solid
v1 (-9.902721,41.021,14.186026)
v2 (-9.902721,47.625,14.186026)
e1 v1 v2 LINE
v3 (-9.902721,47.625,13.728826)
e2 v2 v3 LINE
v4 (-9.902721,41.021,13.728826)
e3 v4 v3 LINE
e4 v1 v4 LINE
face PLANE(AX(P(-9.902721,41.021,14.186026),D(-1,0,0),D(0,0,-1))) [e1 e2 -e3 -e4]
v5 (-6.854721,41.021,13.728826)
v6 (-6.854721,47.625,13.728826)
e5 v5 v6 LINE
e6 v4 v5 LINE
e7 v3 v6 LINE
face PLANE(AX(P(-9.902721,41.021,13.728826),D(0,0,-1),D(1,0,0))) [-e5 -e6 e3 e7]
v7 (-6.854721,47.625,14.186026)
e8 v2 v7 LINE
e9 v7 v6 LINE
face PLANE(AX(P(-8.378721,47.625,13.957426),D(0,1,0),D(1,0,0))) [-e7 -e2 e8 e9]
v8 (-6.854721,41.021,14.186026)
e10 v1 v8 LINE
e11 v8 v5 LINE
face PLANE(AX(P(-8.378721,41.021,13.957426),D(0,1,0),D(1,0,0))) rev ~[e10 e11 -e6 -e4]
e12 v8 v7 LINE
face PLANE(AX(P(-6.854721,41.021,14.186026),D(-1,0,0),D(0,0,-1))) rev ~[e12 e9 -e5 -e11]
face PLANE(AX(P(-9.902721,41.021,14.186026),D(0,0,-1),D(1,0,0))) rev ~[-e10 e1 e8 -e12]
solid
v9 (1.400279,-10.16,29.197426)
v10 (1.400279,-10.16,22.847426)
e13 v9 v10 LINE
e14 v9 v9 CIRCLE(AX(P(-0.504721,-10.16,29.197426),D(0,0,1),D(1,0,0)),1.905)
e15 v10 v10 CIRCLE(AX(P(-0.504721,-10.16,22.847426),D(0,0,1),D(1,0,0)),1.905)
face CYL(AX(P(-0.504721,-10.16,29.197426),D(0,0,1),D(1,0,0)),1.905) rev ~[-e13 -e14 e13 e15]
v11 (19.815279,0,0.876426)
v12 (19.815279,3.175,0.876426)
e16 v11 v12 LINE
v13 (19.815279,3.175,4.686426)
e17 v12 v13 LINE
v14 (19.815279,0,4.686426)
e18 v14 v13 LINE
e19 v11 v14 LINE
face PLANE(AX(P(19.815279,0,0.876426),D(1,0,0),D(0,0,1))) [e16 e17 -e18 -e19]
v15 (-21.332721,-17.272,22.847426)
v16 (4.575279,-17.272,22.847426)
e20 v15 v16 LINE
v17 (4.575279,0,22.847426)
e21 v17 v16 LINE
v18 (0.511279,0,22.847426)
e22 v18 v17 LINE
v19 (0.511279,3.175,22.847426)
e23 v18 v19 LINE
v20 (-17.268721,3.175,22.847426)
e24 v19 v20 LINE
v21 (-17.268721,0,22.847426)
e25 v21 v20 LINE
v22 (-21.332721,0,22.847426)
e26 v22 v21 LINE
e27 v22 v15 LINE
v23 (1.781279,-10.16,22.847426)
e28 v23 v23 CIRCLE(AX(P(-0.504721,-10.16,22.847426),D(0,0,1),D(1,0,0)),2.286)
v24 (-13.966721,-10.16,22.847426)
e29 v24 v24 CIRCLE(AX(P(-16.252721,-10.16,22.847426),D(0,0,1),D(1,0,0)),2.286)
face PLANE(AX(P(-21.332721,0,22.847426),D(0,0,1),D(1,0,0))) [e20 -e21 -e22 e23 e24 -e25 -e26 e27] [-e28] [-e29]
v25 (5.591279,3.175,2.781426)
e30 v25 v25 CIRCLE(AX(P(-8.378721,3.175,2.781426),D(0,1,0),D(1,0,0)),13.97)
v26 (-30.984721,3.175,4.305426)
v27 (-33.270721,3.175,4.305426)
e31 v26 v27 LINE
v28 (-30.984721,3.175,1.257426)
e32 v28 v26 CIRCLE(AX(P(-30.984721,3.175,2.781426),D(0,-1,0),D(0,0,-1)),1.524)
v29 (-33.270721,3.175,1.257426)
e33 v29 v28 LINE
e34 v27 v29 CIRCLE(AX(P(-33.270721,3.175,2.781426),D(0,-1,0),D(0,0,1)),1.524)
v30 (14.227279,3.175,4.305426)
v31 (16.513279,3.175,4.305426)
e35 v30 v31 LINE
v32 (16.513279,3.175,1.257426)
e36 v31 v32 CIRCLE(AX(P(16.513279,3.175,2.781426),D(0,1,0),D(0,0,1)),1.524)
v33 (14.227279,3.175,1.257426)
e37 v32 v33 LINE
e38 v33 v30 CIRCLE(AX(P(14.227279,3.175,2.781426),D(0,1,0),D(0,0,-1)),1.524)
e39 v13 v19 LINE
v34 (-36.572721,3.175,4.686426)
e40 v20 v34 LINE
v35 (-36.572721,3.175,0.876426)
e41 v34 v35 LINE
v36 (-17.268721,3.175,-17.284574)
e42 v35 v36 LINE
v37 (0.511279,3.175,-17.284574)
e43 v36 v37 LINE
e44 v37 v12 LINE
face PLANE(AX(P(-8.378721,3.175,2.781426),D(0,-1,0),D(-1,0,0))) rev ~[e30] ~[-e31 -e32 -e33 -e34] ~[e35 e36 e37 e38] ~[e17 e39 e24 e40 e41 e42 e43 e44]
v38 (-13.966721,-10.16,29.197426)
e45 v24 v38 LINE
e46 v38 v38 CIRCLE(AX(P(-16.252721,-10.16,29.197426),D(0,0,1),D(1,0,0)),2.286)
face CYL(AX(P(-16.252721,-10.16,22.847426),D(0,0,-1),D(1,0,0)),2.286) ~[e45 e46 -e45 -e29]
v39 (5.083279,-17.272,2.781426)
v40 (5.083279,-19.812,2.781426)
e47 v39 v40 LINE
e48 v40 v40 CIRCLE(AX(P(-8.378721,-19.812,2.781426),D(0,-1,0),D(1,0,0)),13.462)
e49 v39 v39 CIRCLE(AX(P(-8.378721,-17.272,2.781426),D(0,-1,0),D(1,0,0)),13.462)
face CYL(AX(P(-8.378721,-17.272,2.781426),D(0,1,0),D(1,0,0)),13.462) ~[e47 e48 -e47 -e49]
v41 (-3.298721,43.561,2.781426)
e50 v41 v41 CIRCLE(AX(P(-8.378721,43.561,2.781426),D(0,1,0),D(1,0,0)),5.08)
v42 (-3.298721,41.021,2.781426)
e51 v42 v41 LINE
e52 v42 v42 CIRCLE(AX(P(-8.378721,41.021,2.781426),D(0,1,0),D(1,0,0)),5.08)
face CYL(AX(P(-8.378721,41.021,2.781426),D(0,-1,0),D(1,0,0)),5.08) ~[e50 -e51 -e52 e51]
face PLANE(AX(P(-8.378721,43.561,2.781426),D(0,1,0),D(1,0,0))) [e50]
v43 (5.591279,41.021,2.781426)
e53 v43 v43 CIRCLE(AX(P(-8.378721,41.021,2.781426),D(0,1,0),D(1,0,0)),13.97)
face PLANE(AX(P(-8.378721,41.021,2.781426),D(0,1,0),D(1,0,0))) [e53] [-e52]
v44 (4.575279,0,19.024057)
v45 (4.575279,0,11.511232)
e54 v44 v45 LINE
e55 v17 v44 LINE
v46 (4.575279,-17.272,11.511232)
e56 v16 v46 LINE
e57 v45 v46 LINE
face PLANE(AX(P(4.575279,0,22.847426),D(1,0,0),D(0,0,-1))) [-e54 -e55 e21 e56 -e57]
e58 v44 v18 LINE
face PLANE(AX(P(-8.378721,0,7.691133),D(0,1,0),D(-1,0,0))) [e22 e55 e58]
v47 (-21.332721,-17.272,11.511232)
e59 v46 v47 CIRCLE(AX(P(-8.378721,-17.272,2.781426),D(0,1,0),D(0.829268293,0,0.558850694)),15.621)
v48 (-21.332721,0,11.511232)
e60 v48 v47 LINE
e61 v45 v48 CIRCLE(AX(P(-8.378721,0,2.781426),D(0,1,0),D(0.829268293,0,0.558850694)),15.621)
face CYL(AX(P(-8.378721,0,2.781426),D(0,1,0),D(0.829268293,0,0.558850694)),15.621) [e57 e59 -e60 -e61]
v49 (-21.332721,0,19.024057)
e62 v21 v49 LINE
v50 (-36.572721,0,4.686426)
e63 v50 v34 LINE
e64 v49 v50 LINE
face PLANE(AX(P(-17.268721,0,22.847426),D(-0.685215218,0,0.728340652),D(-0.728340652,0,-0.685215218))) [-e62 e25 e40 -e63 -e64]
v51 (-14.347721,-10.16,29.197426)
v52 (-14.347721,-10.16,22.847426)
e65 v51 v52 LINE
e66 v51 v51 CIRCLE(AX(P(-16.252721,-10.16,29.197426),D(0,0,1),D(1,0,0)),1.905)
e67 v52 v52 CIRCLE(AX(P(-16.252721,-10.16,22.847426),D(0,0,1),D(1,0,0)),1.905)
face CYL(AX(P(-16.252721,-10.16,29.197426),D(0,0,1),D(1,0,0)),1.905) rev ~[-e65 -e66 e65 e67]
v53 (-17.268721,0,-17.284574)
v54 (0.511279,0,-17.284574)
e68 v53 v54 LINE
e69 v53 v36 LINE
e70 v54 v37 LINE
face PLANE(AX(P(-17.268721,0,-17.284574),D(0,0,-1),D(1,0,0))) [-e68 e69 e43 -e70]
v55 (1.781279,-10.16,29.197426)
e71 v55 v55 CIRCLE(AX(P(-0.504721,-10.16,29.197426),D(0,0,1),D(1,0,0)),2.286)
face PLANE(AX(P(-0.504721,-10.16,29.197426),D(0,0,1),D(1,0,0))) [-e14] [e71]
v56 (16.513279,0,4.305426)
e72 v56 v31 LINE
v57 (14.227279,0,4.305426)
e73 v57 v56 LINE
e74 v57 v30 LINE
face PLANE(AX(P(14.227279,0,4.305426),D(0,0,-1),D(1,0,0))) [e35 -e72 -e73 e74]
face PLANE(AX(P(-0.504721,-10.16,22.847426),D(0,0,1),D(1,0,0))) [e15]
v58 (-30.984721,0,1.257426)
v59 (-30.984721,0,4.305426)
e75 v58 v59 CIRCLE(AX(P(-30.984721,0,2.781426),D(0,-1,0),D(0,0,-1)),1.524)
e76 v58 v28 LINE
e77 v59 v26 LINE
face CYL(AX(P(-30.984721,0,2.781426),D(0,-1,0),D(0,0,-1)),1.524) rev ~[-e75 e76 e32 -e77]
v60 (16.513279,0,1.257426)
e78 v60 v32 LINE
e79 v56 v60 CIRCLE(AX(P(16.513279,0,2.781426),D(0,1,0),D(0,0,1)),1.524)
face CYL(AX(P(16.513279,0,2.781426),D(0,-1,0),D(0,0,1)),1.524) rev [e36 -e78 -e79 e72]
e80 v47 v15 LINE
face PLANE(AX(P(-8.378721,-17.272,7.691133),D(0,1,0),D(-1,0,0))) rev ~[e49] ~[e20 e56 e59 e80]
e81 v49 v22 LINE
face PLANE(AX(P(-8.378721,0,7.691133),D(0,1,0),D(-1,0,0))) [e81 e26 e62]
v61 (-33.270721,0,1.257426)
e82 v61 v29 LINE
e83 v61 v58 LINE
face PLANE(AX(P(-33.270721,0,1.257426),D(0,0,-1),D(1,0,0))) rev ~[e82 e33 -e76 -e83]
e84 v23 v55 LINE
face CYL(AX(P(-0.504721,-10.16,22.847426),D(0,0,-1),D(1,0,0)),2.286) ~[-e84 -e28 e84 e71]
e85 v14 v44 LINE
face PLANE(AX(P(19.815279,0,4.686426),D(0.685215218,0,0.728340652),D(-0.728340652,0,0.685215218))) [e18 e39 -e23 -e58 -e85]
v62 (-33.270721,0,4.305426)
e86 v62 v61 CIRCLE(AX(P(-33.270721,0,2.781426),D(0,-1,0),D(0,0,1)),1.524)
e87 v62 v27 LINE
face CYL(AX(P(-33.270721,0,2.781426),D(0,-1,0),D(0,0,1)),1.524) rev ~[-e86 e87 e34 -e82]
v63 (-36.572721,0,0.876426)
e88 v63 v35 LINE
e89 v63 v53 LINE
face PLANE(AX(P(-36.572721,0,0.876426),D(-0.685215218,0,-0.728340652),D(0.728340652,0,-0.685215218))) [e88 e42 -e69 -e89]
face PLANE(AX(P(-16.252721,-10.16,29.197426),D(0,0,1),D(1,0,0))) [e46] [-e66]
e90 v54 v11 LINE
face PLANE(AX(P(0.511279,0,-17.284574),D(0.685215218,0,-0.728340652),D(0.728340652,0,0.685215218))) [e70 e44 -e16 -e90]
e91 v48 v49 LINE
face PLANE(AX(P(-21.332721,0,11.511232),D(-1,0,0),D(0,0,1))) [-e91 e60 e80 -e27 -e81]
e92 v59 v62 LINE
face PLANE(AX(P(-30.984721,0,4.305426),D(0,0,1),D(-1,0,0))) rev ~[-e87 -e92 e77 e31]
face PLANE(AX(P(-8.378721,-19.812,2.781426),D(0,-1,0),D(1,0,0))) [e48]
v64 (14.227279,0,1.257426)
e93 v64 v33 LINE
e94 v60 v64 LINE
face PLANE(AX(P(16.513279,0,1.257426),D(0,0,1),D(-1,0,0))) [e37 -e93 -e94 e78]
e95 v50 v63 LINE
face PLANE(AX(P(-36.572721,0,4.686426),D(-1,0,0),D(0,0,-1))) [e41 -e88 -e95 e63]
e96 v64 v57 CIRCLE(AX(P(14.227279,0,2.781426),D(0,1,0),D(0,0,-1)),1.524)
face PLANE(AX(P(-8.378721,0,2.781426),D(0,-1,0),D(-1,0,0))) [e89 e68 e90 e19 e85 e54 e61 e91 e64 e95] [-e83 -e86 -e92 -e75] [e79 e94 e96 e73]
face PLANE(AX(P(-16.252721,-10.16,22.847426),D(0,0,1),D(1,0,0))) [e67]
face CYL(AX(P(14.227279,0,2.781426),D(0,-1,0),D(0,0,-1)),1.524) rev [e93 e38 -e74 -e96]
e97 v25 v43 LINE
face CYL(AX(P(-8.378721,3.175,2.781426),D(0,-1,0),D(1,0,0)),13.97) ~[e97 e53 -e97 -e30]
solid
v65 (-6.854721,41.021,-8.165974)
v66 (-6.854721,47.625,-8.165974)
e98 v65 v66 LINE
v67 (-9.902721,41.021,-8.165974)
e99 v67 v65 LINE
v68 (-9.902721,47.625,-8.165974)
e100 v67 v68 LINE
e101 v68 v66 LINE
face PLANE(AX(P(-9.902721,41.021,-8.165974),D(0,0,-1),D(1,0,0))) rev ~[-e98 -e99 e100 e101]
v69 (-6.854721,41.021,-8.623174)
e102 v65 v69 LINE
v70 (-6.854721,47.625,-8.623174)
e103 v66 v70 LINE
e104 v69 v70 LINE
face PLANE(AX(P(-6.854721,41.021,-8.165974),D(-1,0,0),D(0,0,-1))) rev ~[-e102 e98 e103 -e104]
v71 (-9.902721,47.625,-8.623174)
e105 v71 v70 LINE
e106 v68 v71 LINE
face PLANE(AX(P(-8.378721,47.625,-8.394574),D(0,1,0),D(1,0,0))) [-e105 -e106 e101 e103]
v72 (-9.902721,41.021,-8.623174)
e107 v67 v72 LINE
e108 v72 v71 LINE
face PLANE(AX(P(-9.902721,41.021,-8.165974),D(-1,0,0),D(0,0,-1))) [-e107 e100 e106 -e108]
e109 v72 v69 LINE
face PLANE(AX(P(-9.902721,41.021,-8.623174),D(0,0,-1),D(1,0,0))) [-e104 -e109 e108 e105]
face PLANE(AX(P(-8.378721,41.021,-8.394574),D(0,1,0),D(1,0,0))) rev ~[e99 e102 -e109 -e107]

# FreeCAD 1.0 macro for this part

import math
import FreeCAD as App
import Part
import Sketcher
Q = App.Units.Quantity


def add_polygon(sketch, points):
    """Adds a closed chain of lines whose ends are joined by coincident constraints."""
    first, n = sketch.GeometryCount, len(points)
    for a, b in zip(points, points[1:] + points[:1]):
        sketch.addGeometry(Part.LineSegment(App.Vector(*a, 0), App.Vector(*b, 0)), False)
    for i in range(n):
        sketch.addConstraint(Sketcher.Constraint("Coincident", first + i, 2, first + (i + 1) % n, 1))

doc = App.newDocument("Part")
body = doc.addObject("PartDesign::Body", "Body")

sketch1 = body.newObject("Sketcher::SketchObject", "Sketch")
sketch1.AttachmentSupport = (doc.getObject("XZ_Plane"), [""])
sketch1.MapMode = "FlatFace"
add_polygon(sketch1, [(0.511279, -17.284574), (-17.268721, -17.284574), (-36.572721, 0.876426), (-36.572721, 4.686426), (-17.268721, 22.847426), (0.511279, 22.847426), (19.815279, 4.686426), (19.815279, 0.876426)])
sketch1.addConstraint([
    Sketcher.Constraint("Horizontal", 0),
    Sketcher.Constraint("Vertical", 2),
    Sketcher.Constraint("Horizontal", 4),
    Sketcher.Constraint("Vertical", 6),
    Sketcher.Constraint("Parallel", 1, 5),
    Sketcher.Constraint("Parallel", 3, 7),
    Sketcher.Constraint("Horizontal", 2, 2, 5, 2),
    Sketcher.Constraint("Horizontal", 1, 2, 6, 2),
    Sketcher.Constraint("Vertical", 0, 2, 3, 2),
    Sketcher.Constraint("Vertical", 4, 2, 7, 2),
    Sketcher.Constraint("DistanceX", 0, 2, 0, 1, Q("0.7 in")),
    Sketcher.Constraint("DistanceY", 2, 1, 2, 2, Q("0.15 in")),
    Sketcher.Constraint("DistanceX", 1, 2, 0, 2, Q("0.76 in")),
    Sketcher.Constraint("DistanceY", 0, 2, 3, 2, Q("1.58 in")),
    Sketcher.Constraint("DistanceX", 0, 2, -1, 1, Q("17.268721 mm")),
    Sketcher.Constraint("DistanceY", 0, 2, -1, 1, Q("17.284574 mm")),
])
pad1 = body.newObject("PartDesign::Pad", "Pad")
pad1.Profile = sketch1
pad1.Length = Q("0.125 in")
pad1.Reversed = True

sketch2 = body.newObject("Sketcher::SketchObject", "Sketch001")
sketch2.AttachmentSupport = (doc.getObject("XZ_Plane"), [""])
sketch2.MapMode = "FlatFace"
sketch2.AttachmentOffset = App.Placement(App.Vector(0, 0, -0.125 * 25.4), App.Rotation())
sketch2.addGeometry(Part.Circle(App.Vector(-8.378721, 2.781426, 0), App.Vector(0, 0, 1), 13.97), False)
sketch2.addConstraint([
    Sketcher.Constraint("Diameter", 0, Q("1.1 in")),
    Sketcher.Constraint("DistanceX", 0, 3, -1, 1, Q("8.378721 mm")),
    Sketcher.Constraint("DistanceY", -1, 1, 0, 3, Q("2.781426 mm")),
])
pad2 = body.newObject("PartDesign::Pad", "Pad001")
pad2.Profile = sketch2
pad2.Length = Q("1.49 in")
pad2.Reversed = True

sketch3 = body.newObject("Sketcher::SketchObject", "Sketch002")
sketch3.AttachmentSupport = (doc.getObject("XZ_Plane"), [""])
sketch3.MapMode = "FlatFace"
sketch3.AttachmentOffset = App.Placement(App.Vector(0, 0, -1.615 * 25.4), App.Rotation())
sketch3.addGeometry(Part.Circle(App.Vector(-8.378721, 2.781426, 0), App.Vector(0, 0, 1), 5.08), False)
sketch3.addConstraint([
    Sketcher.Constraint("Diameter", 0, Q("0.4 in")),
    Sketcher.Constraint("DistanceX", 0, 3, -1, 1, Q("8.378721 mm")),
    Sketcher.Constraint("DistanceY", -1, 1, 0, 3, Q("2.781426 mm")),
])
pad3 = body.newObject("PartDesign::Pad", "Pad002")
pad3.Profile = sketch3
pad3.Length = Q("0.1 in")
pad3.Reversed = True

sketch4 = body.newObject("Sketcher::SketchObject", "Sketch003")
sketch4.AttachmentSupport = (doc.getObject("XZ_Plane"), [""])
sketch4.MapMode = "FlatFace"
sketch4.addGeometry([
    Part.LineSegment(App.Vector(4.575279, 11.511232, 0), App.Vector(4.575279, 22.847426, 0)),
    Part.LineSegment(App.Vector(4.575279, 22.847426, 0), App.Vector(-21.332721, 22.847426, 0)),
    Part.LineSegment(App.Vector(-21.332721, 22.847426, 0), App.Vector(-21.332721, 11.511232, 0)),
    Part.ArcOfCircle(Part.Circle(App.Vector(-8.378721, 2.781426, 0), App.Vector(0, 0, 1), 15.621), math.radians(146.023647), math.radians(393.976353)),
], False)
sketch4.addConstraint([
    Sketcher.Constraint("Coincident", 0, 2, 1, 1),
    Sketcher.Constraint("Coincident", 1, 2, 2, 1),
    Sketcher.Constraint("Coincident", 2, 2, 3, 1),
    Sketcher.Constraint("Coincident", 3, 2, 0, 1),
    Sketcher.Constraint("Vertical", 0),
    Sketcher.Constraint("Horizontal", 1),
    Sketcher.Constraint("Vertical", 2),
    Sketcher.Constraint("Horizontal", 2, 2, 3, 2),
    Sketcher.Constraint("Radius", 3, Q("0.615 in")),
    Sketcher.Constraint("DistanceX", 1, 2, 1, 1, Q("1.02 in")),
    Sketcher.Constraint("DistanceY", 3, 3, 0, 2, Q("0.79 in")),
    Sketcher.Constraint("DistanceX", 3, 3, -1, 1, Q("8.378721 mm")),
    Sketcher.Constraint("DistanceY", -1, 1, 3, 3, Q("2.781426 mm")),
])
pad4 = body.newObject("PartDesign::Pad", "Pad003")
pad4.Profile = sketch4
pad4.Length = Q("0.68 in")

sketch5 = body.newObject("Sketcher::SketchObject", "Sketch004")
sketch5.AttachmentSupport = (doc.getObject("XZ_Plane"), [""])
sketch5.MapMode = "FlatFace"
sketch5.AttachmentOffset = App.Placement(App.Vector(0, 0, 0.68 * 25.4), App.Rotation())
sketch5.addGeometry(Part.Circle(App.Vector(-8.378721, 2.781426, 0), App.Vector(0, 0, 1), 13.462), False)
sketch5.addConstraint([
    Sketcher.Constraint("Diameter", 0, Q("1.06 in")),
    Sketcher.Constraint("DistanceX", 0, 3, -1, 1, Q("8.378721 mm")),
    Sketcher.Constraint("DistanceY", -1, 1, 0, 3, Q("2.781426 mm")),
])
pad5 = body.newObject("PartDesign::Pad", "Pad004")
pad5.Profile = sketch5
pad5.Length = Q("0.1 in")

sketch6 = body.newObject("Sketcher::SketchObject", "Sketch005")
sketch6.AttachmentSupport = (doc.getObject("XY_Plane"), [""])
sketch6.MapMode = "FlatFace"
sketch6.AttachmentOffset = App.Placement(App.Vector(0, 0, 22.847426), App.Rotation())
sketch6.addGeometry([
    Part.Circle(App.Vector(-0.504721, -10.16, 0), App.Vector(0, 0, 1), 2.286),
    Part.Circle(App.Vector(-16.252721, -10.16, 0), App.Vector(0, 0, 1), 2.286),
], False)
sketch6.addConstraint([
    Sketcher.Constraint("Equal", 0, 1),
    Sketcher.Constraint("Horizontal", 0, 3, 1, 3),
    Sketcher.Constraint("Diameter", 0, Q("0.18 in")),
    Sketcher.Constraint("DistanceY", 0, 3, -1, 1, Q("0.4 in")),
    Sketcher.Constraint("DistanceX", 1, 3, 0, 3, Q("0.62 in")),
    Sketcher.Constraint("DistanceX", 0, 3, -1, 1, Q("0.504721 mm")),
])
pad6 = body.newObject("PartDesign::Pad", "Pad005")
pad6.Profile = sketch6
pad6.Length = Q("0.25 in")

sketch7 = body.newObject("Sketcher::SketchObject", "Sketch006")
sketch7.AttachmentSupport = (doc.getObject("XY_Plane"), [""])
sketch7.MapMode = "FlatFace"
sketch7.AttachmentOffset = App.Placement(App.Vector(0, 0, 29.197426), App.Rotation())
sketch7.addGeometry([
    Part.Circle(App.Vector(-0.504721, -10.16, 0), App.Vector(0, 0, 1), 1.905),
    Part.Circle(App.Vector(-16.252721, -10.16, 0), App.Vector(0, 0, 1), 1.905),
], False)
sketch7.addConstraint([
    Sketcher.Constraint("Equal", 0, 1),
    Sketcher.Constraint("Horizontal", 0, 3, 1, 3),
    Sketcher.Constraint("Diameter", 0, Q("0.15 in")),
    Sketcher.Constraint("DistanceY", 0, 3, -1, 1, Q("0.4 in")),
    Sketcher.Constraint("DistanceX", 1, 3, 0, 3, Q("0.62 in")),
    Sketcher.Constraint("DistanceX", 0, 3, -1, 1, Q("0.504721 mm")),
])
pocket1 = body.newObject("PartDesign::Pocket", "Pocket")
pocket1.Profile = sketch7
pocket1.Length = Q("0.25 in")

sketch8 = body.newObject("Sketcher::SketchObject", "Sketch007")
sketch8.AttachmentSupport = (doc.getObject("XZ_Plane"), [""])
sketch8.MapMode = "FlatFace"
sketch8.addGeometry([
    Part.LineSegment(App.Vector(14.227279, 1.257426, 0), App.Vector(16.513279, 1.257426, 0)),
    Part.ArcOfCircle(Part.Circle(App.Vector(16.513279, 2.781426, 0), App.Vector(0, 0, 1), 1.524), math.radians(-90), math.radians(90)),
    Part.LineSegment(App.Vector(16.513279, 4.305426, 0), App.Vector(14.227279, 4.305426, 0)),
    Part.ArcOfCircle(Part.Circle(App.Vector(14.227279, 2.781426, 0), App.Vector(0, 0, 1), 1.524), math.radians(90), math.radians(270)),
    Part.LineSegment(App.Vector(-33.270721, 1.257426, 0), App.Vector(-30.984721, 1.257426, 0)),
    Part.ArcOfCircle(Part.Circle(App.Vector(-30.984721, 2.781426, 0), App.Vector(0, 0, 1), 1.524), math.radians(-90), math.radians(90)),
    Part.LineSegment(App.Vector(-30.984721, 4.305426, 0), App.Vector(-33.270721, 4.305426, 0)),
    Part.ArcOfCircle(Part.Circle(App.Vector(-33.270721, 2.781426, 0), App.Vector(0, 0, 1), 1.524), math.radians(90), math.radians(270)),
], False)
sketch8.addConstraint([
    Sketcher.Constraint("Tangent", 0, 2, 1, 1),
    Sketcher.Constraint("Tangent", 1, 2, 2, 1),
    Sketcher.Constraint("Tangent", 2, 2, 3, 1),
    Sketcher.Constraint("Tangent", 3, 2, 0, 1),
    Sketcher.Constraint("Tangent", 4, 2, 5, 1),
    Sketcher.Constraint("Tangent", 5, 2, 6, 1),
    Sketcher.Constraint("Tangent", 6, 2, 7, 1),
    Sketcher.Constraint("Tangent", 7, 2, 4, 1),
    Sketcher.Constraint("Horizontal", 0),
    Sketcher.Constraint("Horizontal", 2),
    Sketcher.Constraint("Horizontal", 4),
    Sketcher.Constraint("Horizontal", 6),
    Sketcher.Constraint("Equal", 3, 5),
    Sketcher.Constraint("Horizontal", 3, 3, 5, 3),
    Sketcher.Constraint("Equal", 2, 4),
    Sketcher.Constraint("Radius", 1, Q("0.06 in")),
    Sketcher.Constraint("DistanceX", 0, 1, 0, 2, Q("0.09 in")),
    Sketcher.Constraint("DistanceX", 5, 3, 3, 3, Q("1.78 in")),
    Sketcher.Constraint("DistanceX", -1, 1, 1, 3, Q("16.513279 mm")),
    Sketcher.Constraint("DistanceY", -1, 1, 1, 3, Q("2.781426 mm")),
])
pocket2 = body.newObject("PartDesign::Pocket", "Pocket001")
pocket2.Profile = sketch8
pocket2.Length = Q("0.125 in")
body2 = doc.addObject("PartDesign::Body", "Body001")

sketch9 = body2.newObject("Sketcher::SketchObject", "Sketch008")
sketch9.AttachmentSupport = (doc.getObject("XZ_Plane001"), [""])
sketch9.MapMode = "FlatFace"
sketch9.AttachmentOffset = App.Placement(App.Vector(0, 0, -1.615 * 25.4), App.Rotation())
add_polygon(sketch9, [(-9.902721, -8.623174), (-9.902721, -8.165974), (-6.854721, -8.165974), (-6.854721, -8.623174)])
sketch9.addConstraint([
    Sketcher.Constraint("Vertical", 0),
    Sketcher.Constraint("Horizontal", 1),
    Sketcher.Constraint("Vertical", 2),
    Sketcher.Constraint("Horizontal", 3),
    Sketcher.Constraint("DistanceX", 1, 1, 1, 2, Q("0.12 in")),
    Sketcher.Constraint("DistanceY", 0, 1, 0, 2, Q("0.018 in")),
    Sketcher.Constraint("DistanceX", 0, 2, -1, 1, Q("9.902721 mm")),
    Sketcher.Constraint("DistanceY", 0, 2, -1, 1, Q("8.165974 mm")),
])
pad7 = body2.newObject("PartDesign::Pad", "Pad006")
pad7.Profile = sketch9
pad7.Length = Q("0.26 in")
pad7.Reversed = True
body3 = doc.addObject("PartDesign::Body", "Body002")

sketch10 = body3.newObject("Sketcher::SketchObject", "Sketch009")
sketch10.AttachmentSupport = (doc.getObject("XZ_Plane002"), [""])
sketch10.MapMode = "FlatFace"
sketch10.AttachmentOffset = App.Placement(App.Vector(0, 0, -1.615 * 25.4), App.Rotation())
add_polygon(sketch10, [(-9.902721, 13.728826), (-9.902721, 14.186026), (-6.854721, 14.186026), (-6.854721, 13.728826)])
sketch10.addConstraint([
    Sketcher.Constraint("Vertical", 0),
    Sketcher.Constraint("Horizontal", 1),
    Sketcher.Constraint("Vertical", 2),
    Sketcher.Constraint("Horizontal", 3),
    Sketcher.Constraint("DistanceX", 1, 1, 1, 2, Q("0.12 in")),
    Sketcher.Constraint("DistanceY", 0, 1, 0, 2, Q("0.018 in")),
    Sketcher.Constraint("DistanceX", 0, 2, -1, 1, Q("9.902721 mm")),
    Sketcher.Constraint("DistanceY", -1, 1, 0, 2, Q("14.186026 mm")),
])
pad8 = body3.newObject("PartDesign::Pad", "Pad007")
pad8.Profile = sketch10
pad8.Length = Q("0.26 in")
pad8.Reversed = True

doc.recompute()
